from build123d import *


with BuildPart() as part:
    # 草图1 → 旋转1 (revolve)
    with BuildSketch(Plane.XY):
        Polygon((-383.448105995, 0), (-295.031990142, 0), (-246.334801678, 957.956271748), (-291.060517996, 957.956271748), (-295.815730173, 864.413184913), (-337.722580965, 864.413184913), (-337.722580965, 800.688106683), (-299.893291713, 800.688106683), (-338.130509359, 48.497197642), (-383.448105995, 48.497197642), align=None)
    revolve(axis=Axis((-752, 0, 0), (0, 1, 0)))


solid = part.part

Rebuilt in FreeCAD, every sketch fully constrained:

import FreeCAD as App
import Part
import Sketcher

doc = App.newDocument("Part")
body = doc.addObject("PartDesign::Body", "Body")

# Sketch on XY plane
sketch1 = body.newObject("Sketcher::SketchObject", "Sketch")
sketch1.AttachmentSupport = (doc.getObject("XY_Plane"), [""])
sketch1.MapMode = "FlatFace"
sketch1.addGeometry([
    Part.LineSegment(App.Vector(-383, 0, 0), App.Vector(-295, 0, 0)),  # 0
    Part.LineSegment(App.Vector(-295, 0, 0), App.Vector(-246, 958, 0)),  # 1
    Part.LineSegment(App.Vector(-246, 958, 0), App.Vector(-291, 958, 0)),  # 2
    Part.LineSegment(App.Vector(-291, 958, 0), App.Vector(-296, 864, 0)),  # 3
    Part.LineSegment(App.Vector(-296, 864, 0), App.Vector(-338, 864, 0)),  # 4
    Part.LineSegment(App.Vector(-338, 864, 0), App.Vector(-338, 801, 0)),  # 5
    Part.LineSegment(App.Vector(-338, 801, 0), App.Vector(-300, 801, 0)),  # 6
    Part.LineSegment(App.Vector(-300, 801, 0), App.Vector(-338, 48, 0)),  # 7
    Part.LineSegment(App.Vector(-338, 48, 0), App.Vector(-383, 48, 0)),  # 8
    Part.LineSegment(App.Vector(-383, 48, 0), App.Vector(-383, 0, 0)),  # 9
], False)
sketch1.addGeometry(Part.LineSegment(App.Vector(-752, 0, 0), App.Vector(-752, 958, 0)), True)  # axis
sketch1.addConstraint([
    Sketcher.Constraint("Coincident", 0, 2, 1, 1),
    Sketcher.Constraint("Coincident", 1, 2, 2, 1),
    Sketcher.Constraint("Coincident", 2, 2, 3, 1),
    Sketcher.Constraint("Coincident", 3, 2, 4, 1),
    Sketcher.Constraint("Coincident", 4, 2, 5, 1),
    Sketcher.Constraint("Coincident", 5, 2, 6, 1),
    Sketcher.Constraint("Coincident", 6, 2, 7, 1),
    Sketcher.Constraint("Coincident", 7, 2, 8, 1),
    Sketcher.Constraint("Coincident", 8, 2, 9, 1),
    Sketcher.Constraint("Coincident", 9, 2, 0, 1),
    Sketcher.Constraint("Horizontal", 0),
    Sketcher.Constraint("Horizontal", 2),
    Sketcher.Constraint("Horizontal", 4),
    Sketcher.Constraint("Vertical", 5),
    Sketcher.Constraint("Horizontal", 6),
    Sketcher.Constraint("Horizontal", 8),
    Sketcher.Constraint("Vertical", 9),
    Sketcher.Constraint("Vertical", 10),
    Sketcher.Constraint("PointOnObject", 0, 2, -1),
    Sketcher.Constraint("PointOnObject", 10, 1, -1),
    Sketcher.Constraint("Parallel", 1, 3),
    Sketcher.Constraint("Parallel", 3, 7),
    Sketcher.Constraint("Horizontal", 2, 2, 10, 2),
    Sketcher.Constraint("DistanceX", 10, 1, -1, 1, 752.0),
    Sketcher.Constraint("DistanceX", 4, 2, 4, 1, 41.906851),
    Sketcher.Constraint("DistanceX", 6, 1, 6, 2, 37.829289),
    Sketcher.Constraint("DistanceY", 5, 2, 5, 1, 63.725078),
    Sketcher.Constraint("DistanceY", 10, 1, 10, 2, 957.956272),
    Sketcher.Constraint("DistanceX", 1, 2, -1, 1, 246.334802),
    Sketcher.Constraint("Distance", 1, 959.193221),
    Sketcher.Constraint("DistanceX", 0, 1, 0, 2, 88.416116),
    Sketcher.Constraint("DistanceX", 2, 2, 2, 1, 44.725716),
    Sketcher.Constraint("DistanceX", 8, 2, 8, 1, 45.317597),
    Sketcher.Constraint("DistanceX", 3, 2, -1, 1, 295.81573),
])
revolution = body.newObject("PartDesign::Revolution", "Revolution")
revolution.Profile = sketch1
revolution.ReferenceAxis = (sketch1, ["Axis0"])
revolution.Angle = 360

doc.recompute()
